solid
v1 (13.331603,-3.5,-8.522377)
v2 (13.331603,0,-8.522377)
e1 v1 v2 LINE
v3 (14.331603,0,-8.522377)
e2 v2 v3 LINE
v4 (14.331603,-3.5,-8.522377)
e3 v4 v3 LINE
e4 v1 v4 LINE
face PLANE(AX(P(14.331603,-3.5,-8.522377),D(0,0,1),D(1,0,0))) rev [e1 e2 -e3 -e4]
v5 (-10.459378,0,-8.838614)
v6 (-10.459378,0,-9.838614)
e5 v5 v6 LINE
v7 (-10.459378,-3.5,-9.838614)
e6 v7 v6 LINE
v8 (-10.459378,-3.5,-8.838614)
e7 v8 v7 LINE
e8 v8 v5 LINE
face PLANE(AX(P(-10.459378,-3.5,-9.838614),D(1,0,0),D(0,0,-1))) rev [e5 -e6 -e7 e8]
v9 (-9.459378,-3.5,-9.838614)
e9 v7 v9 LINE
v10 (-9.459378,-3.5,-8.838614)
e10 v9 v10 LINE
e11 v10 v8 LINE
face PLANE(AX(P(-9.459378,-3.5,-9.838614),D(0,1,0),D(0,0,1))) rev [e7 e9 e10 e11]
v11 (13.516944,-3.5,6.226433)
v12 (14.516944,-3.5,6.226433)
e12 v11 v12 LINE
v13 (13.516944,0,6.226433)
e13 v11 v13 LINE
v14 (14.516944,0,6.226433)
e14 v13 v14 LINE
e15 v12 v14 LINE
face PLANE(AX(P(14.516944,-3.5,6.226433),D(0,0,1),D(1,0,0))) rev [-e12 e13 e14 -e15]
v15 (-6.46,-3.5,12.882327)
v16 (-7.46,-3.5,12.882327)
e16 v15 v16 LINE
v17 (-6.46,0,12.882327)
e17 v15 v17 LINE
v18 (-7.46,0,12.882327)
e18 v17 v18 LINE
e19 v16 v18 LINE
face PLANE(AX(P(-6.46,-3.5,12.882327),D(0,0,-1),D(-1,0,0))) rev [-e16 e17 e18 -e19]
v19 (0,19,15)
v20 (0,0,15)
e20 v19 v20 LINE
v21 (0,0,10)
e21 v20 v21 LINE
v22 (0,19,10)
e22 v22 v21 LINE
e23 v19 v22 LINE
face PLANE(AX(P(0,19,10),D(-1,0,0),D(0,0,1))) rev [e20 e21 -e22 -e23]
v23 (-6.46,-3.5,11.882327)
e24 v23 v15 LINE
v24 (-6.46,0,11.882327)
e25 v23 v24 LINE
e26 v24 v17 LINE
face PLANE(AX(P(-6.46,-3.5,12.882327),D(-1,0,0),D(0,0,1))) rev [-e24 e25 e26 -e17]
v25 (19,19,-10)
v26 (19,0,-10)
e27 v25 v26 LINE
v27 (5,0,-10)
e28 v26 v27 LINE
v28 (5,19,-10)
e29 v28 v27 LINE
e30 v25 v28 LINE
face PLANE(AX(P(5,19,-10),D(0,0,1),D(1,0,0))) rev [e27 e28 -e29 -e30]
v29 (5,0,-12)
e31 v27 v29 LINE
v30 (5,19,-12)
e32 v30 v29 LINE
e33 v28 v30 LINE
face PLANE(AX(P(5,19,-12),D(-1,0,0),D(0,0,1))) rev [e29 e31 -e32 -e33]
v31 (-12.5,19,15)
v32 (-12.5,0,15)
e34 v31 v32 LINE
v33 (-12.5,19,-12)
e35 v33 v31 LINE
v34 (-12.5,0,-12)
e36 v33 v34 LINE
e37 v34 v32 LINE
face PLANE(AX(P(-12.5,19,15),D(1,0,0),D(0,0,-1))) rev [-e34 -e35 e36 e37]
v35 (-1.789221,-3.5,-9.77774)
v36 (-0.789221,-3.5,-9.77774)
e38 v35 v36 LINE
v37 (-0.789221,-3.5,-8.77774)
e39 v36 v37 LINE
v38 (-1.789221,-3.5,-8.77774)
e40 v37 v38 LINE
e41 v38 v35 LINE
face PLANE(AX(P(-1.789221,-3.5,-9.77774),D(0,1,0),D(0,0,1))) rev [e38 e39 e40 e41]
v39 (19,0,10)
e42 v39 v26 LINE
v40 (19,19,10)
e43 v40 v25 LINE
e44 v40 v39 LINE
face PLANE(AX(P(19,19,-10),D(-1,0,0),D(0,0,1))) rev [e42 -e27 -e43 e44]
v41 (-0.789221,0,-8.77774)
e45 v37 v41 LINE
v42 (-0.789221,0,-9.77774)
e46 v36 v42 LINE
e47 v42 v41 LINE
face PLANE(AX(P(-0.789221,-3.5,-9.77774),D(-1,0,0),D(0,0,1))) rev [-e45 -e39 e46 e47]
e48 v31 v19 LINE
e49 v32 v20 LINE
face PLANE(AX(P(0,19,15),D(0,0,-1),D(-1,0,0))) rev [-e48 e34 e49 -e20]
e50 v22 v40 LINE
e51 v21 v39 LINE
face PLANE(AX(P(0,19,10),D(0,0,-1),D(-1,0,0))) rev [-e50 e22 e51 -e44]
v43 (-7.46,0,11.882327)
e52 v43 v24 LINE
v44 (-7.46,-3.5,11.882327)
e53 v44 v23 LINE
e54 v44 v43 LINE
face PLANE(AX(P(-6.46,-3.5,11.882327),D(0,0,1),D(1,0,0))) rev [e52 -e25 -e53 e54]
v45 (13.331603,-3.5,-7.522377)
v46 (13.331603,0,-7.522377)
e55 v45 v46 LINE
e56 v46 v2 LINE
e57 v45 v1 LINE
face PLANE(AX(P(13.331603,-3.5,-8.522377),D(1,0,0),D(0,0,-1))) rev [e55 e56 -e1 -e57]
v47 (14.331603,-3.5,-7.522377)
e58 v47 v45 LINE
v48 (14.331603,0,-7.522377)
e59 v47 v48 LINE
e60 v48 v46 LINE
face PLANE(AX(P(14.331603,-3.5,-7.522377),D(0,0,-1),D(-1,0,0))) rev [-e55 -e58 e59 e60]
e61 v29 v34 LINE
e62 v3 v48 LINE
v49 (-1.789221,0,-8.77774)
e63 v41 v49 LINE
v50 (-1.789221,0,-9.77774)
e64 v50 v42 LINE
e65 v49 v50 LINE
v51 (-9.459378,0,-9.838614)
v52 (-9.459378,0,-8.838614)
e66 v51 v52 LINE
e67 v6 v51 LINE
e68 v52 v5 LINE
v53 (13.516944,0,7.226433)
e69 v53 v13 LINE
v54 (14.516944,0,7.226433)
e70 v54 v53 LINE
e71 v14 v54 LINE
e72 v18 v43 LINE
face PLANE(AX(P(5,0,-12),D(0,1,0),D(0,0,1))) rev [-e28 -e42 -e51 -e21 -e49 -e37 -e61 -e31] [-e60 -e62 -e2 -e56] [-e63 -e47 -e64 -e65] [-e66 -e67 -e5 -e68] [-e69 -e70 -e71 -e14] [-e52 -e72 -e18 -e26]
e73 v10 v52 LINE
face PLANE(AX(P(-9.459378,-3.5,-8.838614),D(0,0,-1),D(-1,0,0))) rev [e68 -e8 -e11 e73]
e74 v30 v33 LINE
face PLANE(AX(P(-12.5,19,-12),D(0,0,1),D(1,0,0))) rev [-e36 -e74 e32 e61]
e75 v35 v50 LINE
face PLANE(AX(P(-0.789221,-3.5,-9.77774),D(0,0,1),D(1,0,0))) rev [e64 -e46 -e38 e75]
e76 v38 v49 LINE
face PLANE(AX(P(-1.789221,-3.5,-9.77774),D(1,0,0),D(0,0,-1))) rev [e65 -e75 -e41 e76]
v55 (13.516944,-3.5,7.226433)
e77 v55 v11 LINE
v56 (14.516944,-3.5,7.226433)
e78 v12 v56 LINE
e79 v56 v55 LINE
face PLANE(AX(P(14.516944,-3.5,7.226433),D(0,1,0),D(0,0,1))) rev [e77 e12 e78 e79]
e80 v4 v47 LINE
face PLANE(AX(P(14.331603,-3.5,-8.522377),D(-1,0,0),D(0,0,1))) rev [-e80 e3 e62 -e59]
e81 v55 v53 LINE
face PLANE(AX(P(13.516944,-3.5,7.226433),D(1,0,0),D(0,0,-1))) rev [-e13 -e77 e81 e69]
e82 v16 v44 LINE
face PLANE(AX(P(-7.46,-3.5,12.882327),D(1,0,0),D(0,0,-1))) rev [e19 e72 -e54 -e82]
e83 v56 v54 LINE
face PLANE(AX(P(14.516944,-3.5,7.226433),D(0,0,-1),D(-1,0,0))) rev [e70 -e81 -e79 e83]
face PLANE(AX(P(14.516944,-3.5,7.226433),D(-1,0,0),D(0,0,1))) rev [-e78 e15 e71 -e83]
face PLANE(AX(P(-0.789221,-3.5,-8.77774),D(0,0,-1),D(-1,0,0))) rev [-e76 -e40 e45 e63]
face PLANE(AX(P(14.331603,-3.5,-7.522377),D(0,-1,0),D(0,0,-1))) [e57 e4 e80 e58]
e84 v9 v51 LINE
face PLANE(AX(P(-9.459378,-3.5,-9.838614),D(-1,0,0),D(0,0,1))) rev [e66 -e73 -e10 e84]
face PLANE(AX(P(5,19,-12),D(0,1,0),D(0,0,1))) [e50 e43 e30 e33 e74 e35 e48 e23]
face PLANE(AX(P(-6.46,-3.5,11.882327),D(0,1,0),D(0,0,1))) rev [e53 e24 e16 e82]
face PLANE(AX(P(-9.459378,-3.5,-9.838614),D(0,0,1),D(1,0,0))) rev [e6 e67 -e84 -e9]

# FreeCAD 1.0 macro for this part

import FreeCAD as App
import Part
import Sketcher
from FreeCAD import Vector

doc = App.newDocument("Part")
body = doc.addObject("PartDesign::Body", "Body")

# Sketch on XZ plane
sketch1 = body.newObject("Sketcher::SketchObject", "Sketch")
sketch1.AttachmentSupport = (doc.getObject("XZ_Plane"), [""])
sketch1.MapMode = "FlatFace"
sketch1.addGeometry([
    Part.LineSegment(Vector(19, -10, 0), Vector(5, -10, 0)),  # 0
    Part.LineSegment(Vector(5, -10, 0), Vector(5, -12, 0)),  # 1
    Part.LineSegment(Vector(5, -12, 0), Vector(-12.5, -12, 0)),  # 2
    Part.LineSegment(Vector(-12.5, -12, 0), Vector(-12.5, 15, 0)),  # 3
    Part.LineSegment(Vector(-12.5, 15, 0), Vector(0, 15, 0)),  # 4
    Part.LineSegment(Vector(0, 15, 0), Vector(0, 10, 0)),  # 5
    Part.LineSegment(Vector(0, 10, 0), Vector(19, 10, 0)),  # 6
    Part.LineSegment(Vector(19, 10, 0), Vector(19, -10, 0)),  # 7
], False)
sketch1.addConstraint([
    Sketcher.Constraint("Coincident", 0, 2, 1, 1),
    Sketcher.Constraint("Coincident", 1, 2, 2, 1),
    Sketcher.Constraint("Coincident", 2, 2, 3, 1),
    Sketcher.Constraint("Coincident", 3, 2, 4, 1),
    Sketcher.Constraint("Coincident", 4, 2, 5, 1),
    Sketcher.Constraint("Coincident", 5, 2, 6, 1),
    Sketcher.Constraint("Coincident", 6, 2, 7, 1),
    Sketcher.Constraint("Coincident", 7, 2, 0, 1),
    Sketcher.Constraint("Horizontal", 0),
    Sketcher.Constraint("Vertical", 1),
    Sketcher.Constraint("Horizontal", 2),
    Sketcher.Constraint("Vertical", 3),
    Sketcher.Constraint("Horizontal", 4),
    Sketcher.Constraint("Vertical", 5),
    Sketcher.Constraint("Horizontal", 6),
    Sketcher.Constraint("Vertical", 7),
    Sketcher.Constraint("PointOnObject", 4, 2, -2),
    Sketcher.Constraint("DistanceX", 0, 2, 0, 1, 14.0),
    Sketcher.Constraint("DistanceX", 6, 1, 6, 2, 19.0),
    Sketcher.Constraint("DistanceY", 1, 2, 1, 1, 2.0),
    Sketcher.Constraint("DistanceY", 3, 1, 3, 2, 27.0),
    Sketcher.Constraint("DistanceY", 5, 2, 5, 1, 5.0),
    Sketcher.Constraint("DistanceX", 2, 2, 2, 1, 17.5),
    Sketcher.Constraint("DistanceY", 0, 2, -1, 1, 10.0),
])
pad1 = body.newObject("PartDesign::Pad", "Pad")
pad1.Profile = sketch1
pad1.Length = 19
pad1.Reversed = True

# Sketch on XZ plane
sketch2 = body.newObject("Sketcher::SketchObject", "Sketch001")
sketch2.AttachmentSupport = (doc.getObject("XZ_Plane"), [""])
sketch2.MapMode = "FlatFace"
sketch2.addGeometry([
    Part.LineSegment(Vector(13.3, -7.5, 0), Vector(13.3, -8.5, 0)),  # 0
    Part.LineSegment(Vector(13.3, -8.5, 0), Vector(14.3, -8.5, 0)),  # 1
    Part.LineSegment(Vector(14.3, -8.5, 0), Vector(14.3, -7.5, 0)),  # 2
    Part.LineSegment(Vector(14.3, -7.5, 0), Vector(13.3, -7.5, 0)),  # 3
    Part.LineSegment(Vector(13.5, 7.2, 0), Vector(13.5, 6.2, 0)),  # 4
    Part.LineSegment(Vector(13.5, 6.2, 0), Vector(14.5, 6.2, 0)),  # 5
    Part.LineSegment(Vector(14.5, 6.2, 0), Vector(14.5, 7.2, 0)),  # 6
    Part.LineSegment(Vector(14.5, 7.2, 0), Vector(13.5, 7.2, 0)),  # 7
    Part.LineSegment(Vector(-7.5, 12.9, 0), Vector(-7.5, 11.9, 0)),  # 8
    Part.LineSegment(Vector(-7.5, 11.9, 0), Vector(-6.5, 11.9, 0)),  # 9
    Part.LineSegment(Vector(-6.5, 11.9, 0), Vector(-6.5, 12.9, 0)),  # 10
    Part.LineSegment(Vector(-6.5, 12.9, 0), Vector(-7.5, 12.9, 0)),  # 11
    Part.LineSegment(Vector(-1.8, -8.8, 0), Vector(-1.8, -9.8, 0)),  # 12
    Part.LineSegment(Vector(-1.8, -9.8, 0), Vector(-0.8, -9.8, 0)),  # 13
    Part.LineSegment(Vector(-0.8, -9.8, 0), Vector(-0.8, -8.8, 0)),  # 14
    Part.LineSegment(Vector(-0.8, -8.8, 0), Vector(-1.8, -8.8, 0)),  # 15
    Part.LineSegment(Vector(-10.5, -8.8, 0), Vector(-10.5, -9.8, 0)),  # 16
    Part.LineSegment(Vector(-10.5, -9.8, 0), Vector(-9.5, -9.8, 0)),  # 17
    Part.LineSegment(Vector(-9.5, -9.8, 0), Vector(-9.5, -8.8, 0)),  # 18
    Part.LineSegment(Vector(-9.5, -8.8, 0), Vector(-10.5, -8.8, 0)),  # 19
], False)
sketch2.addConstraint([
    Sketcher.Constraint("Coincident", 0, 2, 1, 1),
    Sketcher.Constraint("Coincident", 1, 2, 2, 1),
    Sketcher.Constraint("Coincident", 2, 2, 3, 1),
    Sketcher.Constraint("Coincident", 3, 2, 0, 1),
    Sketcher.Constraint("Coincident", 4, 2, 5, 1),
    Sketcher.Constraint("Coincident", 5, 2, 6, 1),
    Sketcher.Constraint("Coincident", 6, 2, 7, 1),
    Sketcher.Constraint("Coincident", 7, 2, 4, 1),
    Sketcher.Constraint("Coincident", 8, 2, 9, 1),
    Sketcher.Constraint("Coincident", 9, 2, 10, 1),
    Sketcher.Constraint("Coincident", 10, 2, 11, 1),
    Sketcher.Constraint("Coincident", 11, 2, 8, 1),
    Sketcher.Constraint("Coincident", 12, 2, 13, 1),
    Sketcher.Constraint("Coincident", 13, 2, 14, 1),
    Sketcher.Constraint("Coincident", 14, 2, 15, 1),
    Sketcher.Constraint("Coincident", 15, 2, 12, 1),
    Sketcher.Constraint("Coincident", 16, 2, 17, 1),
    Sketcher.Constraint("Coincident", 17, 2, 18, 1),
    Sketcher.Constraint("Coincident", 18, 2, 19, 1),
    Sketcher.Constraint("Coincident", 19, 2, 16, 1),
    Sketcher.Constraint("Vertical", 0),
    Sketcher.Constraint("Horizontal", 1),
    Sketcher.Constraint("Vertical", 2),
    Sketcher.Constraint("Horizontal", 3),
    Sketcher.Constraint("Vertical", 4),
    Sketcher.Constraint("Horizontal", 5),
    Sketcher.Constraint("Vertical", 6),
    Sketcher.Constraint("Horizontal", 7),
    Sketcher.Constraint("Vertical", 8),
    Sketcher.Constraint("Horizontal", 9),
    Sketcher.Constraint("Vertical", 10),
    Sketcher.Constraint("Horizontal", 11),
    Sketcher.Constraint("Vertical", 12),
    Sketcher.Constraint("Horizontal", 13),
    Sketcher.Constraint("Vertical", 14),
    Sketcher.Constraint("Horizontal", 15),
    Sketcher.Constraint("Vertical", 16),
    Sketcher.Constraint("Horizontal", 17),
    Sketcher.Constraint("Vertical", 18),
    Sketcher.Constraint("Horizontal", 19),
    Sketcher.Constraint("Equal", 3, 5),
    Sketcher.Constraint("Equal", 7, 9),
    Sketcher.Constraint("Equal", 11, 13),
    Sketcher.Constraint("Equal", 15, 17),
    Sketcher.Constraint("Equal", 19, 0),
    Sketcher.Constraint("Equal", 2, 4),
    Sketcher.Constraint("Equal", 6, 8),
    Sketcher.Constraint("Equal", 10, 12),
    Sketcher.Constraint("Equal", 14, 16),
    Sketcher.Constraint("DistanceX", 1, 1, 1, 2, 1.0),
    Sketcher.Constraint("DistanceX", 8, 2, -1, 1, 7.46),
    Sketcher.Constraint("DistanceX", 12, 2, -1, 1, 1.789221),
    Sketcher.Constraint("DistanceY", 12, 2, -1, 1, 9.77774),
    Sketcher.Constraint("DistanceX", 16, 2, -1, 1, 10.459378),
    Sketcher.Constraint("DistanceX", 3, 2, 4, 2, 0.185341),
    Sketcher.Constraint("DistanceY", 3, 2, 4, 2, 13.74881),
    Sketcher.Constraint("DistanceY", 16, 2, 8, 2, 21.720941),
    Sketcher.Constraint("DistanceX", -1, 1, 0, 2, 13.331603),
    Sketcher.Constraint("DistanceY", 0, 2, -1, 1, 8.522377),
    Sketcher.Constraint("DistanceY", -1, 1, 8, 2, 11.882327),
])
pad2 = body.newObject("PartDesign::Pad", "Pad001")
pad2.Profile = sketch2
pad2.Length = 3.5

doc.recompute()
